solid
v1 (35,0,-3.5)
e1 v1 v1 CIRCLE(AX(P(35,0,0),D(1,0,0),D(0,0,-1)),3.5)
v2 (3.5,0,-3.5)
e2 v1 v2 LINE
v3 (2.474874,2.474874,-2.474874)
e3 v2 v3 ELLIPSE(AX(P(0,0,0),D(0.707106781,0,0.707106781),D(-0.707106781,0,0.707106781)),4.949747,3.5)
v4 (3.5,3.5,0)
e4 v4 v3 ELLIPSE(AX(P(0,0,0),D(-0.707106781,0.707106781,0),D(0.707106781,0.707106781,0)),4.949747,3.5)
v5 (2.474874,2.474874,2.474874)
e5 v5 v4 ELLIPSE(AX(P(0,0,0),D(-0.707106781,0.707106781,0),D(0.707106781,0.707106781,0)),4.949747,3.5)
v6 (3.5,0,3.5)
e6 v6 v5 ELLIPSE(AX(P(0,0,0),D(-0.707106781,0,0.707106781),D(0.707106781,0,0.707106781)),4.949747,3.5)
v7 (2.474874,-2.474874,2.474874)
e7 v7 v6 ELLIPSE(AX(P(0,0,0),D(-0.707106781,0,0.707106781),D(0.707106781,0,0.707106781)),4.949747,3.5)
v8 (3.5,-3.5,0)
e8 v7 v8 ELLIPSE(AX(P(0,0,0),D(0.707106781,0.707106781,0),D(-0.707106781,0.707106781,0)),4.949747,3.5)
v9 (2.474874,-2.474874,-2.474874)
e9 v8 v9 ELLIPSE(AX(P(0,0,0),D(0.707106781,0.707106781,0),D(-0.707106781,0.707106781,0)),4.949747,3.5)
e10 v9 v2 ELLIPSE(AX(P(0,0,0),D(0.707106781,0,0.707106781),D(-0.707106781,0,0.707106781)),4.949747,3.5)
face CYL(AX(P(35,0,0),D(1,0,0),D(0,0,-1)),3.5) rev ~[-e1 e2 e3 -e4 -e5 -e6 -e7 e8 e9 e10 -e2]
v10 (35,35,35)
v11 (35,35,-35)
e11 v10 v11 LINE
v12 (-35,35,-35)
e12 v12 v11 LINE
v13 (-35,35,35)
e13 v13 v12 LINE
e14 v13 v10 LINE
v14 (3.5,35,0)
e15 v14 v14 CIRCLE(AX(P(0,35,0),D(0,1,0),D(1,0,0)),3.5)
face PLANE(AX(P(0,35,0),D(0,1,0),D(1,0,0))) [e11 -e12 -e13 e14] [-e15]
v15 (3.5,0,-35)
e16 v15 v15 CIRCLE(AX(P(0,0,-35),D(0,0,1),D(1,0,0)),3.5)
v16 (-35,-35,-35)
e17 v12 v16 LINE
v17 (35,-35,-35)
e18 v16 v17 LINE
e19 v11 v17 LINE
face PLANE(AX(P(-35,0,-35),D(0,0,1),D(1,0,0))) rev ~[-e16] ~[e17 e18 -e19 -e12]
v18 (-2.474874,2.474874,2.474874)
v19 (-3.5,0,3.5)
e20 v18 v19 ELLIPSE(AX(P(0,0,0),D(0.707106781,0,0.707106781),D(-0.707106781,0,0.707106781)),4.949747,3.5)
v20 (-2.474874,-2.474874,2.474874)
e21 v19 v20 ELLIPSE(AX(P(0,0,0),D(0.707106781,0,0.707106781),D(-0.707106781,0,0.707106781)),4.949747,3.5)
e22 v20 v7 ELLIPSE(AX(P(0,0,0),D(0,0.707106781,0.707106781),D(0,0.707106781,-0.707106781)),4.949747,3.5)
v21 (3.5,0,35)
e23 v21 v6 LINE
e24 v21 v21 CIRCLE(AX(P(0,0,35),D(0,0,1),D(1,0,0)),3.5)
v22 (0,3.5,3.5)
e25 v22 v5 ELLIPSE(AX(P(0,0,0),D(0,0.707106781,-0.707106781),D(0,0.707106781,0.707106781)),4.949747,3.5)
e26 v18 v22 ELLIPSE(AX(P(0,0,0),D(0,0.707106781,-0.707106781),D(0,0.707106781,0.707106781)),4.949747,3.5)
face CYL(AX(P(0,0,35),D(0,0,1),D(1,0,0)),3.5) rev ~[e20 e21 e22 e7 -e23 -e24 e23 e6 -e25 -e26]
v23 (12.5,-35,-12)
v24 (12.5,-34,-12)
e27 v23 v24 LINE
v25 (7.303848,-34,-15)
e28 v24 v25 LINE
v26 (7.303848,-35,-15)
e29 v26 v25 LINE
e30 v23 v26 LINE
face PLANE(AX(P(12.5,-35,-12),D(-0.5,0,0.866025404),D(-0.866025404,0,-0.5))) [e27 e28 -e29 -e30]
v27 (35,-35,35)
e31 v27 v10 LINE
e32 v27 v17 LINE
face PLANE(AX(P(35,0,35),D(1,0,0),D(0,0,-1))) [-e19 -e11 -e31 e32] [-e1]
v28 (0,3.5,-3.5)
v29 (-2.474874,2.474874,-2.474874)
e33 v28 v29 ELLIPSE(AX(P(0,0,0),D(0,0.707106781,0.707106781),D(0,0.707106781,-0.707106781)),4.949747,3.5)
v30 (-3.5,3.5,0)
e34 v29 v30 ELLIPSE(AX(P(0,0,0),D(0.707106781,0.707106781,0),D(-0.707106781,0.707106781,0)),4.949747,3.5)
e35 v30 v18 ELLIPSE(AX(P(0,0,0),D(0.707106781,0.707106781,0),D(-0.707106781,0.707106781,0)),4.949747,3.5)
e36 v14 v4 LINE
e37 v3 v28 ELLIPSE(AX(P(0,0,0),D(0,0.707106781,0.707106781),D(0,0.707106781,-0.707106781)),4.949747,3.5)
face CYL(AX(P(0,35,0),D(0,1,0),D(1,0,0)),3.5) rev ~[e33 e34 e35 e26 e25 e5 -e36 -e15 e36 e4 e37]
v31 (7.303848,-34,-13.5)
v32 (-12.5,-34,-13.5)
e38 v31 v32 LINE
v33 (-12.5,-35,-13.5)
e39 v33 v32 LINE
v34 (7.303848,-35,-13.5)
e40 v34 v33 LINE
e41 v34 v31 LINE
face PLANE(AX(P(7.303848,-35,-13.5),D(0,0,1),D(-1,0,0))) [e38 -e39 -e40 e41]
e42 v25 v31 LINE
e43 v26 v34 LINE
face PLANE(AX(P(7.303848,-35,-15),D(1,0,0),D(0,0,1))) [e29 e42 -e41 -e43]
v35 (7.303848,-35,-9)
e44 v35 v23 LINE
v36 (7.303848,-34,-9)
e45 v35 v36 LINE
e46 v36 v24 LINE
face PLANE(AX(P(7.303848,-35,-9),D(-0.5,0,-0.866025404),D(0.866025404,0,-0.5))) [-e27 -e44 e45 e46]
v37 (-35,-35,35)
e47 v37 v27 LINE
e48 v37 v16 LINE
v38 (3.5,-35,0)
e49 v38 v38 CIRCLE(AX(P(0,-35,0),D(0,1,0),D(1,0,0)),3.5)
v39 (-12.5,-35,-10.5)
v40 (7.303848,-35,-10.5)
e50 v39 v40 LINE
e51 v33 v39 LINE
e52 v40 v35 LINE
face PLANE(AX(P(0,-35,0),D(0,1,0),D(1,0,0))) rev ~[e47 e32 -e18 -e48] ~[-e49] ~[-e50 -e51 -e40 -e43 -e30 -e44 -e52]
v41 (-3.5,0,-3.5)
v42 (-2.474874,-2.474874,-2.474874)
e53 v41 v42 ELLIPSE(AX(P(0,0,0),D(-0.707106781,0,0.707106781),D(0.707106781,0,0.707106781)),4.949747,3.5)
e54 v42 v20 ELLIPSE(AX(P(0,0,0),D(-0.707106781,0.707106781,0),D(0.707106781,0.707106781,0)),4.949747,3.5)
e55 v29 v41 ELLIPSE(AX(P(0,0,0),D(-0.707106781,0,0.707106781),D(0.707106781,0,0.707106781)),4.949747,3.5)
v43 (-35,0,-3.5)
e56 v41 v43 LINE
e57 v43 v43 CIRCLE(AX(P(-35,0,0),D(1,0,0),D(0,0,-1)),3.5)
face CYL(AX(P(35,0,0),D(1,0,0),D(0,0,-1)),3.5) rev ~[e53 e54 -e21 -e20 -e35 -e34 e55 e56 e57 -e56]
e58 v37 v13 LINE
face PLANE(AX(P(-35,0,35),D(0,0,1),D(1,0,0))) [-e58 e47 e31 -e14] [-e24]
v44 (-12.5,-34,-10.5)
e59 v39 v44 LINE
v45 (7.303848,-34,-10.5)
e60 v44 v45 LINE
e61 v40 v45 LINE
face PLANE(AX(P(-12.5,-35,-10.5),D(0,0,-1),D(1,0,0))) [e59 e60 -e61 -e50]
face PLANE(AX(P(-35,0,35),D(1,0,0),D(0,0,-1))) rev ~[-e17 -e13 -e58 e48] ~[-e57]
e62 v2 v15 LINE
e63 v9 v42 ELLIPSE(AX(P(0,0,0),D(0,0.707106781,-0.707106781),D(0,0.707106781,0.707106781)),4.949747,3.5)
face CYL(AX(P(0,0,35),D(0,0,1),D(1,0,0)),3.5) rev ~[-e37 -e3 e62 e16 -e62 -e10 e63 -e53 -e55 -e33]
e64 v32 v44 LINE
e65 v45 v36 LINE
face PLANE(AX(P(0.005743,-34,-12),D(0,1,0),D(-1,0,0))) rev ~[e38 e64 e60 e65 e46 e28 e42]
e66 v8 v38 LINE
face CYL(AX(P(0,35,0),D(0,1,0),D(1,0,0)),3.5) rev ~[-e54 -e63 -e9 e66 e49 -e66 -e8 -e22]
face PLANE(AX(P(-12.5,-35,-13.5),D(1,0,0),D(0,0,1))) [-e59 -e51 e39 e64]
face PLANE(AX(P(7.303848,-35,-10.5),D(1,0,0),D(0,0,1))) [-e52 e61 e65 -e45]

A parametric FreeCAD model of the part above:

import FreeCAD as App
import Part
import Sketcher
Q = App.Units.Quantity


def add_polygon(sketch, points):
    """Adds a closed chain of lines whose ends are joined by coincident constraints."""
    first, n = sketch.GeometryCount, len(points)
    for a, b in zip(points, points[1:] + points[:1]):
        sketch.addGeometry(Part.LineSegment(App.Vector(*a, 0), App.Vector(*b, 0)), False)
    for i in range(n):
        sketch.addConstraint(Sketcher.Constraint("Coincident", first + i, 2, first + (i + 1) % n, 1))

doc = App.newDocument("Part")
body = doc.addObject("PartDesign::Body", "Body")

sketch1 = body.newObject("Sketcher::SketchObject", "Sketch")
sketch1.AttachmentSupport = (doc.getObject("XZ_Plane"), [""])
sketch1.MapMode = "FlatFace"
add_polygon(sketch1, [(-35, -35), (-35, 35), (35, 35), (35, -35)])
sketch1.addConstraint(Sketcher.Constraint("Vertical", 0))
sketch1.addConstraint(Sketcher.Constraint("Horizontal", 1))
sketch1.addConstraint(Sketcher.Constraint("Vertical", 2))
sketch1.addConstraint(Sketcher.Constraint("Horizontal", 3))
sketch1.addConstraint(Sketcher.Constraint("Symmetric", 0, 2, 2, 2, -1, 1))
sketch1.addConstraint(Sketcher.Constraint("Equal", 3, 0))
sketch1.addConstraint(Sketcher.Constraint("DistanceX", 1, 1, 1, 2, Q("70 mm")))
pad1 = body.newObject("PartDesign::Pad", "Pad")
pad1.Profile = sketch1
pad1.Length = 70
pad1.Midplane = True

sketch2 = body.newObject("Sketcher::SketchObject", "Sketch001")
sketch2.AttachmentSupport = (doc.getObject("XZ_Plane"), [""])
sketch2.MapMode = "FlatFace"
sketch2.AttachmentOffset = App.Placement(App.Vector(0, 0, -35), App.Rotation())
sketch2.addGeometry(Part.Circle(App.Vector(0, 0, 0), App.Vector(0, 0, 1), 3.5), False)
sketch2.addConstraint(Sketcher.Constraint("Coincident", 0, 3, -1, 1))
sketch2.addConstraint(Sketcher.Constraint("Diameter", 0, Q("7 mm")))
pocket1 = body.newObject("PartDesign::Pocket", "Pocket")
pocket1.Profile = sketch2
pocket1.Type = "ThroughAll"
pocket1.Reversed = True

sketch3 = body.newObject("Sketcher::SketchObject", "Sketch002")
sketch3.AttachmentSupport = (doc.getObject("XY_Plane"), [""])
sketch3.MapMode = "FlatFace"
sketch3.AttachmentOffset = App.Placement(App.Vector(0, 0, 35), App.Rotation())
sketch3.addGeometry(Part.Circle(App.Vector(0, 0, 0), App.Vector(0, 0, 1), 3.5), False)
sketch3.addConstraint(Sketcher.Constraint("Coincident", 0, 3, -1, 1))
sketch3.addConstraint(Sketcher.Constraint("Diameter", 0, Q("7 mm")))
pocket2 = body.newObject("PartDesign::Pocket", "Pocket001")
pocket2.Profile = sketch3
pocket2.Type = "ThroughAll"

sketch4 = body.newObject("Sketcher::SketchObject", "Sketch003")
sketch4.AttachmentSupport = (doc.getObject("YZ_Plane"), [""])
sketch4.MapMode = "FlatFace"
sketch4.AttachmentOffset = App.Placement(App.Vector(0, 0, 35), App.Rotation())
sketch4.addGeometry(Part.Circle(App.Vector(0, 0, 0), App.Vector(0, 0, 1), 3.5), False)
sketch4.addConstraint(Sketcher.Constraint("Coincident", 0, 3, -1, 1))
sketch4.addConstraint(Sketcher.Constraint("Diameter", 0, Q("7 mm")))
pocket3 = body.newObject("PartDesign::Pocket", "Pocket002")
pocket3.Profile = sketch4
pocket3.Type = "ThroughAll"

sketch5 = body.newObject("Sketcher::SketchObject", "Sketch004")
sketch5.AttachmentSupport = (doc.getObject("XZ_Plane"), [""])
sketch5.MapMode = "FlatFace"
sketch5.AttachmentOffset = App.Placement(App.Vector(0, 0, 35), App.Rotation())
add_polygon(sketch5, [(7.303848, -9), (7.303848, -10.5), (-12.5, -10.5), (-12.5, -13.5), (7.303848, -13.5), (7.303848, -15), (12.5, -12)])
sketch5.addConstraint(Sketcher.Constraint("Vertical", 0))
sketch5.addConstraint(Sketcher.Constraint("Horizontal", 1))
sketch5.addConstraint(Sketcher.Constraint("Vertical", 2))
sketch5.addConstraint(Sketcher.Constraint("Horizontal", 3))
sketch5.addConstraint(Sketcher.Constraint("Vertical", 4))
sketch5.addConstraint(Sketcher.Constraint("Vertical", 0, 2, 3, 2))
sketch5.addConstraint(Sketcher.Constraint("Equal", 0, 4))
sketch5.addConstraint(Sketcher.Constraint("Equal", 5, 6))
sketch5.addConstraint(Sketcher.Constraint("DistanceY", 2, 2, 2, 1, Q("3 mm")))
sketch5.addConstraint(Sketcher.Constraint("Angle", 5, Q("30 deg")))
sketch5.addConstraint(Sketcher.Constraint("Distance", 5, Q("6 mm")))
sketch5.addConstraint(Sketcher.Constraint("DistanceY", 4, 2, -1, 1, Q("15 mm")))
sketch5.addConstraint(Sketcher.Constraint("DistanceX", 1, 2, 5, 2, Q("25 mm")))
sketch5.addConstraint(Sketcher.Constraint("DistanceX", 1, 2, -1, 1, Q("12.5 mm")))
pocket4 = body.newObject("PartDesign::Pocket", "Pocket003")
pocket4.Profile = sketch5
pocket4.Length = 1

doc.recompute()
